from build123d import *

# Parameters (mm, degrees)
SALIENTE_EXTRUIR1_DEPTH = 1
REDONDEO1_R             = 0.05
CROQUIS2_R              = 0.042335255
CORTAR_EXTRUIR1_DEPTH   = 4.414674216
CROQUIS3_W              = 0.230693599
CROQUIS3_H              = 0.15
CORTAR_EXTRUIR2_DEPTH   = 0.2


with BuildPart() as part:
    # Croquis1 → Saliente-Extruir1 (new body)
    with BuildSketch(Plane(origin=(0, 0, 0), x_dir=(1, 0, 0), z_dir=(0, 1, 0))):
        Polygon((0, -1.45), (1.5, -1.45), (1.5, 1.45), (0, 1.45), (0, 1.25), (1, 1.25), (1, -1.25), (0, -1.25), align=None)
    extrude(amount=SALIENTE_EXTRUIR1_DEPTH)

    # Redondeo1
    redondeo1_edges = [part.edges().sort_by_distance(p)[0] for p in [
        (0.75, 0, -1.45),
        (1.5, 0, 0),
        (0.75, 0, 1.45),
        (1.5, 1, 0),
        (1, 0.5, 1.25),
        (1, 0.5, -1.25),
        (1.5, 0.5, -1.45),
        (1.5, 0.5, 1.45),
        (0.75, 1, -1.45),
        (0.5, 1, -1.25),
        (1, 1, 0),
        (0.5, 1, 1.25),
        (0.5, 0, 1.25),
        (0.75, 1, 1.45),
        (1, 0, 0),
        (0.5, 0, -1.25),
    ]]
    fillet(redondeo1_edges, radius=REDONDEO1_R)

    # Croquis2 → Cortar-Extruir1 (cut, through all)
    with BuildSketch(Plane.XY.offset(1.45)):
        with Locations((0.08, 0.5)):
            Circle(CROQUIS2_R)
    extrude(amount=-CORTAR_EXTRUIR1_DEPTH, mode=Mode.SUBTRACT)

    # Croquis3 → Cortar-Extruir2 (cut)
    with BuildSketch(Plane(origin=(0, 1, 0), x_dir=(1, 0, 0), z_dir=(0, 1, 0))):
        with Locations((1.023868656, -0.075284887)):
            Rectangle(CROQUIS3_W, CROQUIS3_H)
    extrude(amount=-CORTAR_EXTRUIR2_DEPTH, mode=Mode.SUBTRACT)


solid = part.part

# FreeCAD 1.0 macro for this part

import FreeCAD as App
import Part
import Sketcher
from FreeCAD import Vector
Q = App.Units.Quantity


def edges_at(feature, points):
    """Names of the edges that pass closest to the given points."""
    edges = feature.Shape.Edges
    near = lambda p: min(range(len(edges)), key=lambda i: edges[i].distToShape(Part.Vertex(*p))[0])
    return sorted({f"Edge{near(p) + 1}" for p in points})

doc = App.newDocument("Part")
body = doc.addObject("PartDesign::Body", "Body")

sketch1 = doc.addObject("Sketcher::SketchObject", "Sketch")
body.addObject(sketch1)
sketch1.AttachmentSupport = (doc.XZ_Plane, [""])
sketch1.MapMode = "FlatFace"
sketch1.addGeometry([
    Part.LineSegment(Vector(0, 1.45, 0), Vector(1.5, 1.45, 0)),
    Part.LineSegment(Vector(1.5, 1.45, 0), Vector(1.5, -1.45, 0)),
    Part.LineSegment(Vector(1.5, -1.45, 0), Vector(0, -1.45, 0)),
    Part.LineSegment(Vector(0, -1.45, 0), Vector(0, -1.25, 0)),
    Part.LineSegment(Vector(0, -1.25, 0), Vector(1, -1.25, 0)),
    Part.LineSegment(Vector(1, -1.25, 0), Vector(1, 1.25, 0)),
    Part.LineSegment(Vector(1, 1.25, 0), Vector(0, 1.25, 0)),
    Part.LineSegment(Vector(0, 1.25, 0), Vector(0, 1.45, 0)),
], False)
sketch1.addConstraint([
    Sketcher.Constraint("Coincident", 0, 2, 1, 1),
    Sketcher.Constraint("Coincident", 1, 2, 2, 1),
    Sketcher.Constraint("Coincident", 2, 2, 3, 1),
    Sketcher.Constraint("Coincident", 3, 2, 4, 1),
    Sketcher.Constraint("Coincident", 4, 2, 5, 1),
    Sketcher.Constraint("Coincident", 5, 2, 6, 1),
    Sketcher.Constraint("Coincident", 6, 2, 7, 1),
    Sketcher.Constraint("Coincident", 7, 2, 0, 1),
    Sketcher.Constraint("Horizontal", 0),
    Sketcher.Constraint("Vertical", 1),
    Sketcher.Constraint("Horizontal", 2),
    Sketcher.Constraint("Vertical", 3),
    Sketcher.Constraint("Horizontal", 4),
    Sketcher.Constraint("Vertical", 5),
    Sketcher.Constraint("Horizontal", 6),
    Sketcher.Constraint("Vertical", 7),
    Sketcher.Constraint("Symmetric", 3, 2, 6, 2, -1, 1),
    Sketcher.Constraint("Symmetric", 2, 2, 7, 2, -1),
    Sketcher.Constraint("DistanceX", 4, 1, 4, 2, Q("1 mm")),
    Sketcher.Constraint("DistanceX", 0, 1, 0, 2, Q("1.5 mm")),
    Sketcher.Constraint("DistanceY", 1, 2, 1, 1, Q("2.9 mm")),
    Sketcher.Constraint("DistanceY", 3, 1, 3, 2, Q("0.2 mm")),
])
pad1 = doc.addObject("PartDesign::Pad", "Pad")
body.addObject(pad1)
pad1.Profile = sketch1
pad1.Length = 1
pad1.Reversed = True
doc.recompute()

fillet = doc.addObject("PartDesign::Fillet", "Fillet")
body.addObject(fillet)
fillet.Base = (pad1, edges_at(pad1, [
    (0.75, 0, -1.45),
    (1.5, 0, 0),
    (0.75, 0, 1.45),
    (1.5, 1, 0),
    (1, 0.5, 1.25),
    (1, 0.5, -1.25),
    (1.5, 0.5, -1.45),
    (1.5, 0.5, 1.45),
    (0.75, 1, -1.45),
    (0.5, 1, -1.25),
    (1, 1, 0),
    (0.5, 1, 1.25),
    (0.5, 0, 1.25),
    (0.75, 1, 1.45),
    (1, 0, 0),
    (0.5, 0, -1.25),
]))
fillet.Radius = 0.05

sketch2 = doc.addObject("Sketcher::SketchObject", "Sketch001")
body.addObject(sketch2)
sketch2.AttachmentSupport = (doc.XY_Plane, [""])
sketch2.MapMode = "FlatFace"
sketch2.AttachmentOffset = App.Placement(Vector(0, 0, 1.45), App.Rotation())
sketch2.addGeometry(Part.Circle(Vector(0.08, 0.5, 0), Vector(0, 0, 1), 0.042335), False)
sketch2.addConstraint([
    Sketcher.Constraint("DistanceY", -1, 1, 0, 3, Q("0.5 mm")),
    Sketcher.Constraint("Diameter", 0, Q("0.084671 mm")),
    Sketcher.Constraint("DistanceX", -1, 1, 0, 3, Q("0.08 mm")),
])
pocket1 = doc.addObject("PartDesign::Pocket", "Pocket")
body.addObject(pocket1)
pocket1.Profile = sketch2
pocket1.Type = "ThroughAll"

sketch3 = doc.addObject("Sketcher::SketchObject", "Sketch002")
body.addObject(sketch3)
sketch3.AttachmentSupport = (doc.XZ_Plane, [""])
sketch3.MapMode = "FlatFace"
sketch3.AttachmentOffset = App.Placement(Vector(0, 0, -1), App.Rotation())
sketch3.addGeometry([
    Part.LineSegment(Vector(0.908522, 0.000285, 0), Vector(0.908522, 0.150285, 0)),
    Part.LineSegment(Vector(0.908522, 0.150285, 0), Vector(1.139215, 0.150285, 0)),
    Part.LineSegment(Vector(1.139215, 0.150285, 0), Vector(1.139215, 0.000285, 0)),
    Part.LineSegment(Vector(1.139215, 0.000285, 0), Vector(0.908522, 0.000285, 0)),
], False)
sketch3.addConstraint([
    Sketcher.Constraint("Coincident", 0, 2, 1, 1),
    Sketcher.Constraint("Coincident", 1, 2, 2, 1),
    Sketcher.Constraint("Coincident", 2, 2, 3, 1),
    Sketcher.Constraint("Coincident", 3, 2, 0, 1),
    Sketcher.Constraint("Vertical", 0),
    Sketcher.Constraint("Horizontal", 1),
    Sketcher.Constraint("Vertical", 2),
    Sketcher.Constraint("Horizontal", 3),
    Sketcher.Constraint("DistanceY", 0, 1, 0, 2, Q("0.15 mm")),
    Sketcher.Constraint("DistanceX", 1, 1, 1, 2, Q("0.230694 mm")),
    Sketcher.Constraint("DistanceX", -1, 1, 0, 2, Q("0.908522 mm")),
    Sketcher.Constraint("DistanceY", -1, 1, 0, 2, Q("0.150285 mm")),
])
pocket2 = doc.addObject("PartDesign::Pocket", "Pocket001")
body.addObject(pocket2)
pocket2.Profile = sketch3
pocket2.Length = 0.2
pocket2.Reversed = True

doc.recompute()
